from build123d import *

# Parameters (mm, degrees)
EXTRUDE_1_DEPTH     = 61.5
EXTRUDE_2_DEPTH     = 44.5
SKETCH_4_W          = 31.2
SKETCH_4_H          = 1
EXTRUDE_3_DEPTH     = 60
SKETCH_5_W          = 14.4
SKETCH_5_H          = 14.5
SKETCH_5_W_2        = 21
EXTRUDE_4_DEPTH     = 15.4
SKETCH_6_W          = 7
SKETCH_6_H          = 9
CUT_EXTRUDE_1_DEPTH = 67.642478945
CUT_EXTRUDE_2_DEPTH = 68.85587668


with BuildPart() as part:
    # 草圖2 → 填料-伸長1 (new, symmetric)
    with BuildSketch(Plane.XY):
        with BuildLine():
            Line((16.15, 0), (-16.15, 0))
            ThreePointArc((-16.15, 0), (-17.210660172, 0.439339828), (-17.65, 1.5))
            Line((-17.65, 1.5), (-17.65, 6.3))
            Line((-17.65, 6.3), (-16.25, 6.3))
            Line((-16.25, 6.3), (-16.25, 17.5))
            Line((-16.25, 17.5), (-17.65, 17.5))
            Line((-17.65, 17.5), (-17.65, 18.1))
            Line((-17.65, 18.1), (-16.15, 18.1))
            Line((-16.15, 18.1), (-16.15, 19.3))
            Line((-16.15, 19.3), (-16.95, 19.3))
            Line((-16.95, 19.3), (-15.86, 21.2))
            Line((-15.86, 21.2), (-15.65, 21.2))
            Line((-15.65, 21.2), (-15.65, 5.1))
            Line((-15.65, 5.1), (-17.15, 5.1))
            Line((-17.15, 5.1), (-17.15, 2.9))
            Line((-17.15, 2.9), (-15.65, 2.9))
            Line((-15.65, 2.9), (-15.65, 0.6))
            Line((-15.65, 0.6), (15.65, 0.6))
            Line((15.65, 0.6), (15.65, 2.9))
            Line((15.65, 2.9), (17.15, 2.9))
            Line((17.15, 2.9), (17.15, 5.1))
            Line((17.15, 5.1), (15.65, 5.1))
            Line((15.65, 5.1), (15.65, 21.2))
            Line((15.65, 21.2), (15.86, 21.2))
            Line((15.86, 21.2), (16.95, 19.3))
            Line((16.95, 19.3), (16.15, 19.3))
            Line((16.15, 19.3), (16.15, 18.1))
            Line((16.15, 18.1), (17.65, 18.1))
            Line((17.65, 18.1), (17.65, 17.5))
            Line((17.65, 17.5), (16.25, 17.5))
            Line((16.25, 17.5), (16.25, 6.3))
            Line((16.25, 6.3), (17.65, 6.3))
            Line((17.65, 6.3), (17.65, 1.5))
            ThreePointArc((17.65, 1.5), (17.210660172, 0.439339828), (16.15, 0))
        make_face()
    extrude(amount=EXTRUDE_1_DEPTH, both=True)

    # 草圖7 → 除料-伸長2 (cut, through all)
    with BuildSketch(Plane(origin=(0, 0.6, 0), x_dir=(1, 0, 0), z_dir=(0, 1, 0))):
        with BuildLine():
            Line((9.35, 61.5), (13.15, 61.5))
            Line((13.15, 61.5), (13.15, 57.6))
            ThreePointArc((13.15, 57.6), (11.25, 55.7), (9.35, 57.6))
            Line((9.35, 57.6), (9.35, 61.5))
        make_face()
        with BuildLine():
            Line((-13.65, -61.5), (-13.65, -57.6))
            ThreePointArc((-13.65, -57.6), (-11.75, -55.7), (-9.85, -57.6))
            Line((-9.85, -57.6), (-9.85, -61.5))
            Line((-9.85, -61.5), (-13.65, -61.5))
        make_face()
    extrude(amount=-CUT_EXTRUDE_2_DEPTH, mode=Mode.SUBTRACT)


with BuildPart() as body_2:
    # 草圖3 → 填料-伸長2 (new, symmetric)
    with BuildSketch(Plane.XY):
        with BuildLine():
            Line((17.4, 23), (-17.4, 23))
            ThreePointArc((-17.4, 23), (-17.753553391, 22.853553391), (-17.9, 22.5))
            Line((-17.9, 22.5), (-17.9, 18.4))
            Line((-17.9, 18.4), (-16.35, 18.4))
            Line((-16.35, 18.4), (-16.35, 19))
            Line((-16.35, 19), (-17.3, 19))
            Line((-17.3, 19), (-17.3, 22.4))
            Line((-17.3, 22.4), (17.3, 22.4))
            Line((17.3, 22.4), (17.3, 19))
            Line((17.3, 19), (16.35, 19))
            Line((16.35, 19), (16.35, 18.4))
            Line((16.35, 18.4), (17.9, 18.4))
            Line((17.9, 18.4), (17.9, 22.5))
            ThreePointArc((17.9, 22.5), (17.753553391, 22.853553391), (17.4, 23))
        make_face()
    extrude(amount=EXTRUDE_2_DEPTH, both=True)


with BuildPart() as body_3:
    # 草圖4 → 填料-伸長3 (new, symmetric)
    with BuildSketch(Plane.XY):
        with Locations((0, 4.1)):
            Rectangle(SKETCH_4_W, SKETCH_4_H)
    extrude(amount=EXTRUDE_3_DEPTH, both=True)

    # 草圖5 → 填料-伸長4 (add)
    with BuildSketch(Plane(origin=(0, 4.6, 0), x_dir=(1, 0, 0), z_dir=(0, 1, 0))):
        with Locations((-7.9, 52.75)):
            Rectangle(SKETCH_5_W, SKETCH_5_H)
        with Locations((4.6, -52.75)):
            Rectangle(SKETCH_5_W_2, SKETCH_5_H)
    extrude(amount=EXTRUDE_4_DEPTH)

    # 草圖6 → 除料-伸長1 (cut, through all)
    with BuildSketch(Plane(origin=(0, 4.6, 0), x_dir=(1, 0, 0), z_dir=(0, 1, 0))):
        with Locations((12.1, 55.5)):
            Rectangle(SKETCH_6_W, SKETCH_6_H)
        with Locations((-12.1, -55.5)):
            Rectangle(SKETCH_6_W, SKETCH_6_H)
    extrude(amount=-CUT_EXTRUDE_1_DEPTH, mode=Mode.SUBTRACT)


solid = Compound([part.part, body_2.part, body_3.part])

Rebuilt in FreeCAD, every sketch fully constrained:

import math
import FreeCAD as App
import Part
import Sketcher
from FreeCAD import Vector
Q = App.Units.Quantity


def add_polygon(sketch, points):
    """Adds a closed chain of lines whose ends are joined by coincident constraints."""
    first, n = sketch.GeometryCount, len(points)
    for a, b in zip(points, points[1:] + points[:1]):
        sketch.addGeometry(Part.LineSegment(App.Vector(*a, 0), App.Vector(*b, 0)), False)
    for i in range(n):
        sketch.addConstraint(Sketcher.Constraint("Coincident", first + i, 2, first + (i + 1) % n, 1))

doc = App.newDocument("Part")
body = doc.addObject("PartDesign::Body", "Body")

sketch1 = body.newObject("Sketcher::SketchObject", "Sketch")
sketch1.AttachmentSupport = (doc.getObject("XY_Plane"), [""])
sketch1.MapMode = "FlatFace"
sketch1.addGeometry(Part.LineSegment(Vector(-16.15, 0, 0), Vector(16.15, 0, 0)), False)
sketch1.addGeometry(Part.ArcOfCircle(Part.Circle(Vector(16.15, 1.5, 0), Vector(0, 0, 1), 1.5), math.radians(-90), math.radians(0)), False)
sketch1.addGeometry(Part.LineSegment(Vector(17.65, 1.5, 0), Vector(17.65, 6.3, 0)), False)
sketch1.addGeometry(Part.LineSegment(Vector(17.65, 6.3, 0), Vector(16.25, 6.3, 0)), False)
sketch1.addGeometry(Part.LineSegment(Vector(16.25, 6.3, 0), Vector(16.25, 17.5, 0)), False)
sketch1.addGeometry(Part.LineSegment(Vector(16.25, 17.5, 0), Vector(17.65, 17.5, 0)), False)
sketch1.addGeometry(Part.LineSegment(Vector(17.65, 17.5, 0), Vector(17.65, 18.1, 0)), False)
sketch1.addGeometry(Part.LineSegment(Vector(17.65, 18.1, 0), Vector(16.15, 18.1, 0)), False)
sketch1.addGeometry(Part.LineSegment(Vector(16.15, 18.1, 0), Vector(16.15, 19.3, 0)), False)
sketch1.addGeometry(Part.LineSegment(Vector(16.15, 19.3, 0), Vector(16.95, 19.3, 0)), False)
sketch1.addGeometry(Part.LineSegment(Vector(16.95, 19.3, 0), Vector(15.86, 21.2, 0)), False)
sketch1.addGeometry(Part.LineSegment(Vector(15.86, 21.2, 0), Vector(15.65, 21.2, 0)), False)
sketch1.addGeometry(Part.LineSegment(Vector(15.65, 21.2, 0), Vector(15.65, 5.1, 0)), False)
sketch1.addGeometry(Part.LineSegment(Vector(15.65, 5.1, 0), Vector(17.15, 5.1, 0)), False)
sketch1.addGeometry(Part.LineSegment(Vector(17.15, 5.1, 0), Vector(17.15, 2.9, 0)), False)
sketch1.addGeometry(Part.LineSegment(Vector(17.15, 2.9, 0), Vector(15.65, 2.9, 0)), False)
sketch1.addGeometry(Part.LineSegment(Vector(15.65, 2.9, 0), Vector(15.65, 0.6, 0)), False)
sketch1.addGeometry(Part.LineSegment(Vector(15.65, 0.6, 0), Vector(-15.65, 0.6, 0)), False)
sketch1.addGeometry(Part.LineSegment(Vector(-15.65, 0.6, 0), Vector(-15.65, 2.9, 0)), False)
sketch1.addGeometry(Part.LineSegment(Vector(-15.65, 2.9, 0), Vector(-17.15, 2.9, 0)), False)
sketch1.addGeometry(Part.LineSegment(Vector(-17.15, 2.9, 0), Vector(-17.15, 5.1, 0)), False)
sketch1.addGeometry(Part.LineSegment(Vector(-17.15, 5.1, 0), Vector(-15.65, 5.1, 0)), False)
sketch1.addGeometry(Part.LineSegment(Vector(-15.65, 5.1, 0), Vector(-15.65, 21.2, 0)), False)
sketch1.addGeometry(Part.LineSegment(Vector(-15.65, 21.2, 0), Vector(-15.86, 21.2, 0)), False)
sketch1.addGeometry(Part.LineSegment(Vector(-15.86, 21.2, 0), Vector(-16.95, 19.3, 0)), False)
sketch1.addGeometry(Part.LineSegment(Vector(-16.95, 19.3, 0), Vector(-16.15, 19.3, 0)), False)
sketch1.addGeometry(Part.LineSegment(Vector(-16.15, 19.3, 0), Vector(-16.15, 18.1, 0)), False)
sketch1.addGeometry(Part.LineSegment(Vector(-16.15, 18.1, 0), Vector(-17.65, 18.1, 0)), False)
sketch1.addGeometry(Part.LineSegment(Vector(-17.65, 18.1, 0), Vector(-17.65, 17.5, 0)), False)
sketch1.addGeometry(Part.LineSegment(Vector(-17.65, 17.5, 0), Vector(-16.25, 17.5, 0)), False)
sketch1.addGeometry(Part.LineSegment(Vector(-16.25, 17.5, 0), Vector(-16.25, 6.3, 0)), False)
sketch1.addGeometry(Part.LineSegment(Vector(-16.25, 6.3, 0), Vector(-17.65, 6.3, 0)), False)
sketch1.addGeometry(Part.LineSegment(Vector(-17.65, 6.3, 0), Vector(-17.65, 1.5, 0)), False)
sketch1.addGeometry(Part.ArcOfCircle(Part.Circle(Vector(-16.15, 1.5, 0), Vector(0, 0, 1), 1.5), math.radians(180), math.radians(270)), False)
sketch1.addConstraint(Sketcher.Constraint("Tangent", 0, 2, 1, 1))
sketch1.addConstraint(Sketcher.Constraint("Tangent", 1, 2, 2, 1))
sketch1.addConstraint(Sketcher.Constraint("Coincident", 2, 2, 3, 1))
sketch1.addConstraint(Sketcher.Constraint("Coincident", 3, 2, 4, 1))
sketch1.addConstraint(Sketcher.Constraint("Coincident", 4, 2, 5, 1))
sketch1.addConstraint(Sketcher.Constraint("Coincident", 5, 2, 6, 1))
sketch1.addConstraint(Sketcher.Constraint("Coincident", 6, 2, 7, 1))
sketch1.addConstraint(Sketcher.Constraint("Coincident", 7, 2, 8, 1))
sketch1.addConstraint(Sketcher.Constraint("Coincident", 8, 2, 9, 1))
sketch1.addConstraint(Sketcher.Constraint("Coincident", 9, 2, 10, 1))
sketch1.addConstraint(Sketcher.Constraint("Coincident", 10, 2, 11, 1))
sketch1.addConstraint(Sketcher.Constraint("Coincident", 11, 2, 12, 1))
sketch1.addConstraint(Sketcher.Constraint("Coincident", 12, 2, 13, 1))
sketch1.addConstraint(Sketcher.Constraint("Coincident", 13, 2, 14, 1))
sketch1.addConstraint(Sketcher.Constraint("Coincident", 14, 2, 15, 1))
sketch1.addConstraint(Sketcher.Constraint("Coincident", 15, 2, 16, 1))
sketch1.addConstraint(Sketcher.Constraint("Coincident", 16, 2, 17, 1))
sketch1.addConstraint(Sketcher.Constraint("Coincident", 17, 2, 18, 1))
sketch1.addConstraint(Sketcher.Constraint("Coincident", 18, 2, 19, 1))
sketch1.addConstraint(Sketcher.Constraint("Coincident", 19, 2, 20, 1))
sketch1.addConstraint(Sketcher.Constraint("Coincident", 20, 2, 21, 1))
sketch1.addConstraint(Sketcher.Constraint("Coincident", 21, 2, 22, 1))
sketch1.addConstraint(Sketcher.Constraint("Coincident", 22, 2, 23, 1))
sketch1.addConstraint(Sketcher.Constraint("Coincident", 23, 2, 24, 1))
sketch1.addConstraint(Sketcher.Constraint("Coincident", 24, 2, 25, 1))
sketch1.addConstraint(Sketcher.Constraint("Coincident", 25, 2, 26, 1))
sketch1.addConstraint(Sketcher.Constraint("Coincident", 26, 2, 27, 1))
sketch1.addConstraint(Sketcher.Constraint("Coincident", 27, 2, 28, 1))
sketch1.addConstraint(Sketcher.Constraint("Coincident", 28, 2, 29, 1))
sketch1.addConstraint(Sketcher.Constraint("Coincident", 29, 2, 30, 1))
sketch1.addConstraint(Sketcher.Constraint("Coincident", 30, 2, 31, 1))
sketch1.addConstraint(Sketcher.Constraint("Coincident", 31, 2, 32, 1))
sketch1.addConstraint(Sketcher.Constraint("Tangent", 32, 2, 33, 1))
sketch1.addConstraint(Sketcher.Constraint("Tangent", 33, 2, 0, 1))
sketch1.addConstraint(Sketcher.Constraint("Horizontal", 0))
sketch1.addConstraint(Sketcher.Constraint("Vertical", 2))
sketch1.addConstraint(Sketcher.Constraint("Horizontal", 3))
sketch1.addConstraint(Sketcher.Constraint("Vertical", 4))
sketch1.addConstraint(Sketcher.Constraint("Horizontal", 5))
sketch1.addConstraint(Sketcher.Constraint("Vertical", 6))
sketch1.addConstraint(Sketcher.Constraint("Horizontal", 7))
sketch1.addConstraint(Sketcher.Constraint("Vertical", 8))
sketch1.addConstraint(Sketcher.Constraint("Horizontal", 9))
sketch1.addConstraint(Sketcher.Constraint("Horizontal", 11))
sketch1.addConstraint(Sketcher.Constraint("Vertical", 12))
sketch1.addConstraint(Sketcher.Constraint("Horizontal", 13))
sketch1.addConstraint(Sketcher.Constraint("Vertical", 14))
sketch1.addConstraint(Sketcher.Constraint("Horizontal", 15))
sketch1.addConstraint(Sketcher.Constraint("Vertical", 16))
sketch1.addConstraint(Sketcher.Constraint("Horizontal", 17))
sketch1.addConstraint(Sketcher.Constraint("Vertical", 18))
sketch1.addConstraint(Sketcher.Constraint("Horizontal", 19))
sketch1.addConstraint(Sketcher.Constraint("Vertical", 20))
sketch1.addConstraint(Sketcher.Constraint("Horizontal", 21))
sketch1.addConstraint(Sketcher.Constraint("Vertical", 22))
sketch1.addConstraint(Sketcher.Constraint("Horizontal", 23))
sketch1.addConstraint(Sketcher.Constraint("Horizontal", 25))
sketch1.addConstraint(Sketcher.Constraint("Vertical", 26))
sketch1.addConstraint(Sketcher.Constraint("Horizontal", 27))
sketch1.addConstraint(Sketcher.Constraint("Vertical", 28))
sketch1.addConstraint(Sketcher.Constraint("Horizontal", 29))
sketch1.addConstraint(Sketcher.Constraint("Vertical", 30))
sketch1.addConstraint(Sketcher.Constraint("Horizontal", 31))
sketch1.addConstraint(Sketcher.Constraint("Vertical", 32))
sketch1.addConstraint(Sketcher.Constraint("Equal", 1, 33))
sketch1.addConstraint(Sketcher.Constraint("Symmetric", 0, 2, 33, 2, -1, 1))
sketch1.addConstraint(Sketcher.Constraint("Symmetric", 15, 2, 18, 2, -2))
sketch1.addConstraint(Sketcher.Constraint("Symmetric", 13, 2, 20, 2, -2))
sketch1.addConstraint(Sketcher.Constraint("Symmetric", 11, 2, 22, 2, -2))
sketch1.addConstraint(Sketcher.Constraint("Symmetric", 9, 2, 24, 2, -2))
sketch1.addConstraint(Sketcher.Constraint("Symmetric", 7, 2, 26, 2, -2))
sketch1.addConstraint(Sketcher.Constraint("Symmetric", 5, 2, 28, 2, -2))
sketch1.addConstraint(Sketcher.Constraint("Symmetric", 3, 2, 30, 2, -2))
sketch1.addConstraint(Sketcher.Constraint("Vertical", 2, 2, 5, 2))
sketch1.addConstraint(Sketcher.Constraint("Vertical", 0, 2, 7, 2))
sketch1.addConstraint(Sketcher.Constraint("Vertical", 12, 2, 15, 2))
sketch1.addConstraint(Sketcher.Constraint("Equal", 7, 13))
sketch1.addConstraint(Sketcher.Constraint("Equal", 11, 23))
sketch1.addConstraint(Sketcher.Constraint("Radius", 1, Q("1.5 mm")))
sketch1.addConstraint(Sketcher.Constraint("DistanceX", 0, 1, 0, 2, Q("32.3 mm")))
sketch1.addConstraint(Sketcher.Constraint("DistanceX", 3, 2, 3, 1, Q("1.4 mm")))
sketch1.addConstraint(Sketcher.Constraint("DistanceX", 9, 1, 9, 2, Q("0.8 mm")))
sketch1.addConstraint(Sketcher.Constraint("DistanceX", 17, 2, 17, 1, Q("31.3 mm")))
sketch1.addConstraint(Sketcher.Constraint("DistanceY", 2, 1, 2, 2, Q("4.8 mm")))
sketch1.addConstraint(Sketcher.Constraint("DistanceY", 4, 1, 4, 2, Q("11.2 mm")))
sketch1.addConstraint(Sketcher.Constraint("DistanceY", 6, 1, 6, 2, Q("0.6 mm")))
sketch1.addConstraint(Sketcher.Constraint("DistanceY", 8, 1, 8, 2, Q("1.2 mm")))
sketch1.addConstraint(Sketcher.Constraint("DistanceY", 12, 2, 12, 1, Q("16.1 mm")))
sketch1.addConstraint(Sketcher.Constraint("DistanceY", 14, 2, 14, 1, Q("2.2 mm")))
sketch1.addConstraint(Sketcher.Constraint("DistanceY", 16, 2, 16, 1, Q("2.3 mm")))
sketch1.addConstraint(Sketcher.Constraint("DistanceY", 21, 2, 26, 2, Q("13 mm")))
sketch1.addConstraint(Sketcher.Constraint("DistanceX", 11, 2, 11, 1, Q("0.21 mm")))
pad1 = body.newObject("PartDesign::Pad", "Pad")
pad1.Profile = sketch1
pad1.Length = 123
pad1.Midplane = True

sketch2 = body.newObject("Sketcher::SketchObject", "Sketch001")
sketch2.AttachmentSupport = (doc.getObject("XZ_Plane"), [""])
sketch2.MapMode = "FlatFace"
sketch2.AttachmentOffset = App.Placement(Vector(0, 0, -0.6), App.Rotation())
sketch2.addGeometry(Part.LineSegment(Vector(13.15, -61.5, 0), Vector(9.35, -61.5, 0)), False)
sketch2.addGeometry(Part.LineSegment(Vector(9.35, -61.5, 0), Vector(9.35, -57.6, 0)), False)
sketch2.addGeometry(Part.ArcOfCircle(Part.Circle(Vector(11.25, -57.6, 0), Vector(0, 0, 1), 1.9), math.radians(0), math.radians(180)), False)
sketch2.addGeometry(Part.LineSegment(Vector(13.15, -57.6, 0), Vector(13.15, -61.5, 0)), False)
sketch2.addGeometry(Part.LineSegment(Vector(-13.65, 57.6, 0), Vector(-13.65, 61.5, 0)), False)
sketch2.addGeometry(Part.LineSegment(Vector(-13.65, 61.5, 0), Vector(-9.85, 61.5, 0)), False)
sketch2.addGeometry(Part.LineSegment(Vector(-9.85, 61.5, 0), Vector(-9.85, 57.6, 0)), False)
sketch2.addGeometry(Part.ArcOfCircle(Part.Circle(Vector(-11.75, 57.6, 0), Vector(0, 0, 1), 1.9), math.radians(180), math.radians(360)), False)
sketch2.addConstraint(Sketcher.Constraint("Coincident", 0, 2, 1, 1))
sketch2.addConstraint(Sketcher.Constraint("Tangent", 1, 2, 2, 2))
sketch2.addConstraint(Sketcher.Constraint("Tangent", 2, 1, 3, 1))
sketch2.addConstraint(Sketcher.Constraint("Coincident", 3, 2, 0, 1))
sketch2.addConstraint(Sketcher.Constraint("Coincident", 4, 2, 5, 1))
sketch2.addConstraint(Sketcher.Constraint("Coincident", 5, 2, 6, 1))
sketch2.addConstraint(Sketcher.Constraint("Tangent", 6, 2, 7, 2))
sketch2.addConstraint(Sketcher.Constraint("Tangent", 7, 1, 4, 1))
sketch2.addConstraint(Sketcher.Constraint("Horizontal", 0))
sketch2.addConstraint(Sketcher.Constraint("Vertical", 1))
sketch2.addConstraint(Sketcher.Constraint("Vertical", 3))
sketch2.addConstraint(Sketcher.Constraint("Vertical", 4))
sketch2.addConstraint(Sketcher.Constraint("Horizontal", 5))
sketch2.addConstraint(Sketcher.Constraint("Vertical", 6))
sketch2.addConstraint(Sketcher.Constraint("Equal", 2, 7))
sketch2.addConstraint(Sketcher.Constraint("Equal", 3, 4))
sketch2.addConstraint(Sketcher.Constraint("Radius", 2, Q("1.9 mm")))
sketch2.addConstraint(Sketcher.Constraint("DistanceY", 1, 1, 1, 2, Q("3.9 mm")))
sketch2.addConstraint(Sketcher.Constraint("DistanceX", 7, 3, 2, 3, Q("23 mm")))
sketch2.addConstraint(Sketcher.Constraint("DistanceY", 0, 2, 4, 2, Q("123 mm")))
sketch2.addConstraint(Sketcher.Constraint("DistanceY", 2, 3, -1, 1, Q("57.6 mm")))
sketch2.addConstraint(Sketcher.Constraint("DistanceX", -1, 1, 2, 3, Q("11.25 mm")))
pocket1 = body.newObject("PartDesign::Pocket", "Pocket")
pocket1.Profile = sketch2
pocket1.Type = "ThroughAll"
pocket1.Reversed = True
body2 = doc.addObject("PartDesign::Body", "Body001")

sketch3 = body2.newObject("Sketcher::SketchObject", "Sketch002")
sketch3.AttachmentSupport = (doc.getObject("XY_Plane001"), [""])
sketch3.MapMode = "FlatFace"
sketch3.addGeometry(Part.LineSegment(Vector(17.4, 23, 0), Vector(-17.4, 23, 0)), False)
sketch3.addGeometry(Part.ArcOfCircle(Part.Circle(Vector(-17.4, 22.5, 0), Vector(0, 0, 1), 0.5), math.radians(90), math.radians(180)), False)
sketch3.addGeometry(Part.LineSegment(Vector(-17.9, 22.5, 0), Vector(-17.9, 18.4, 0)), False)
sketch3.addGeometry(Part.LineSegment(Vector(-17.9, 18.4, 0), Vector(-16.35, 18.4, 0)), False)
sketch3.addGeometry(Part.LineSegment(Vector(-16.35, 18.4, 0), Vector(-16.35, 19, 0)), False)
sketch3.addGeometry(Part.LineSegment(Vector(-16.35, 19, 0), Vector(-17.3, 19, 0)), False)
sketch3.addGeometry(Part.LineSegment(Vector(-17.3, 19, 0), Vector(-17.3, 22.4, 0)), False)
sketch3.addGeometry(Part.LineSegment(Vector(-17.3, 22.4, 0), Vector(17.3, 22.4, 0)), False)
sketch3.addGeometry(Part.LineSegment(Vector(17.3, 22.4, 0), Vector(17.3, 19, 0)), False)
sketch3.addGeometry(Part.LineSegment(Vector(17.3, 19, 0), Vector(16.35, 19, 0)), False)
sketch3.addGeometry(Part.LineSegment(Vector(16.35, 19, 0), Vector(16.35, 18.4, 0)), False)
sketch3.addGeometry(Part.LineSegment(Vector(16.35, 18.4, 0), Vector(17.9, 18.4, 0)), False)
sketch3.addGeometry(Part.LineSegment(Vector(17.9, 18.4, 0), Vector(17.9, 22.5, 0)), False)
sketch3.addGeometry(Part.ArcOfCircle(Part.Circle(Vector(17.4, 22.5, 0), Vector(0, 0, 1), 0.5), math.radians(0), math.radians(90)), False)
sketch3.addConstraint(Sketcher.Constraint("Tangent", 0, 2, 1, 1))
sketch3.addConstraint(Sketcher.Constraint("Tangent", 1, 2, 2, 1))
sketch3.addConstraint(Sketcher.Constraint("Coincident", 2, 2, 3, 1))
sketch3.addConstraint(Sketcher.Constraint("Coincident", 3, 2, 4, 1))
sketch3.addConstraint(Sketcher.Constraint("Coincident", 4, 2, 5, 1))
sketch3.addConstraint(Sketcher.Constraint("Coincident", 5, 2, 6, 1))
sketch3.addConstraint(Sketcher.Constraint("Coincident", 6, 2, 7, 1))
sketch3.addConstraint(Sketcher.Constraint("Coincident", 7, 2, 8, 1))
sketch3.addConstraint(Sketcher.Constraint("Coincident", 8, 2, 9, 1))
sketch3.addConstraint(Sketcher.Constraint("Coincident", 9, 2, 10, 1))
sketch3.addConstraint(Sketcher.Constraint("Coincident", 10, 2, 11, 1))
sketch3.addConstraint(Sketcher.Constraint("Coincident", 11, 2, 12, 1))
sketch3.addConstraint(Sketcher.Constraint("Tangent", 12, 2, 13, 1))
sketch3.addConstraint(Sketcher.Constraint("Tangent", 13, 2, 0, 1))
sketch3.addConstraint(Sketcher.Constraint("Horizontal", 0))
sketch3.addConstraint(Sketcher.Constraint("Vertical", 2))
sketch3.addConstraint(Sketcher.Constraint("Horizontal", 3))
sketch3.addConstraint(Sketcher.Constraint("Vertical", 4))
sketch3.addConstraint(Sketcher.Constraint("Horizontal", 5))
sketch3.addConstraint(Sketcher.Constraint("Vertical", 6))
sketch3.addConstraint(Sketcher.Constraint("Horizontal", 7))
sketch3.addConstraint(Sketcher.Constraint("Vertical", 8))
sketch3.addConstraint(Sketcher.Constraint("Horizontal", 9))
sketch3.addConstraint(Sketcher.Constraint("Vertical", 10))
sketch3.addConstraint(Sketcher.Constraint("Horizontal", 11))
sketch3.addConstraint(Sketcher.Constraint("Vertical", 12))
sketch3.addConstraint(Sketcher.Constraint("Equal", 1, 13))
sketch3.addConstraint(Sketcher.Constraint("Symmetric", 5, 2, 8, 2, -2))
sketch3.addConstraint(Sketcher.Constraint("Symmetric", 3, 2, 10, 2, -2))
sketch3.addConstraint(Sketcher.Constraint("Equal", 3, 11))
sketch3.addConstraint(Sketcher.Constraint("Radius", 1, Q("0.5 mm")))
sketch3.addConstraint(Sketcher.Constraint("DistanceX", 0, 2, 0, 1, Q("34.8 mm")))
sketch3.addConstraint(Sketcher.Constraint("DistanceX", 7, 1, 7, 2, Q("34.6 mm")))
sketch3.addConstraint(Sketcher.Constraint("DistanceY", 2, 2, 2, 1, Q("4.1 mm")))
sketch3.addConstraint(Sketcher.Constraint("DistanceY", 4, 1, 4, 2, Q("0.6 mm")))
sketch3.addConstraint(Sketcher.Constraint("DistanceY", 6, 1, 6, 2, Q("3.4 mm")))
sketch3.addConstraint(Sketcher.Constraint("DistanceY", -1, 1, 0, 2, Q("23 mm")))
sketch3.addConstraint(Sketcher.Constraint("DistanceX", 3, 1, 3, 2, Q("1.55 mm")))
pad2 = body2.newObject("PartDesign::Pad", "Pad001")
pad2.Profile = sketch3
pad2.Length = 89
pad2.Midplane = True
body3 = doc.addObject("PartDesign::Body", "Body002")

sketch4 = body3.newObject("Sketcher::SketchObject", "Sketch003")
sketch4.AttachmentSupport = (doc.getObject("XY_Plane002"), [""])
sketch4.MapMode = "FlatFace"
add_polygon(sketch4, [(-15.6, 4.6), (-15.6, 3.6), (15.6, 3.6), (15.6, 4.6)])
sketch4.addConstraint(Sketcher.Constraint("Vertical", 0))
sketch4.addConstraint(Sketcher.Constraint("Horizontal", 1))
sketch4.addConstraint(Sketcher.Constraint("Vertical", 2))
sketch4.addConstraint(Sketcher.Constraint("Horizontal", 3))
sketch4.addConstraint(Sketcher.Constraint("DistanceY", 0, 2, 0, 1, Q("1 mm")))
sketch4.addConstraint(Sketcher.Constraint("DistanceX", 1, 1, 1, 2, Q("31.2 mm")))
sketch4.addConstraint(Sketcher.Constraint("DistanceX", 0, 2, -1, 1, Q("15.6 mm")))
sketch4.addConstraint(Sketcher.Constraint("DistanceY", -1, 1, 0, 2, Q("3.6 mm")))
pad3 = body3.newObject("PartDesign::Pad", "Pad002")
pad3.Profile = sketch4
pad3.Length = 120
pad3.Midplane = True

sketch5 = body3.newObject("Sketcher::SketchObject", "Sketch004")
sketch5.AttachmentSupport = (doc.getObject("XZ_Plane002"), [""])
sketch5.MapMode = "FlatFace"
sketch5.AttachmentOffset = App.Placement(Vector(0, 0, -4.6), App.Rotation())
add_polygon(sketch5, [(-15.1, -60), (-15.1, -45.5), (-0.7, -45.5), (-0.7, -60)])
add_polygon(sketch5, [(-5.9, 45.5), (-5.9, 60), (15.1, 60), (15.1, 45.5)])
sketch5.addConstraint(Sketcher.Constraint("Vertical", 0))
sketch5.addConstraint(Sketcher.Constraint("Horizontal", 1))
sketch5.addConstraint(Sketcher.Constraint("Vertical", 2))
sketch5.addConstraint(Sketcher.Constraint("Horizontal", 3))
sketch5.addConstraint(Sketcher.Constraint("Vertical", 4))
sketch5.addConstraint(Sketcher.Constraint("Horizontal", 5))
sketch5.addConstraint(Sketcher.Constraint("Vertical", 6))
sketch5.addConstraint(Sketcher.Constraint("Horizontal", 7))
sketch5.addConstraint(Sketcher.Constraint("Symmetric", 3, 2, 5, 2, -1, 1))
sketch5.addConstraint(Sketcher.Constraint("Equal", 2, 4))
sketch5.addConstraint(Sketcher.Constraint("DistanceX", 5, 1, 5, 2, Q("21 mm")))
sketch5.addConstraint(Sketcher.Constraint("DistanceX", 1, 1, 1, 2, Q("14.4 mm")))
sketch5.addConstraint(Sketcher.Constraint("DistanceY", 0, 1, 0, 2, Q("14.5 mm")))
sketch5.addConstraint(Sketcher.Constraint("DistanceY", 2, 2, -1, 1, Q("60 mm")))
sketch5.addConstraint(Sketcher.Constraint("DistanceX", 0, 2, -1, 1, Q("15.1 mm")))
pad4 = body3.newObject("PartDesign::Pad", "Pad003")
pad4.Profile = sketch5
pad4.Length = 15.4
pad4.Reversed = True

sketch6 = body3.newObject("Sketcher::SketchObject", "Sketch005")
sketch6.AttachmentSupport = (doc.getObject("XZ_Plane002"), [""])
sketch6.MapMode = "FlatFace"
sketch6.AttachmentOffset = App.Placement(Vector(0, 0, -4.6), App.Rotation())
add_polygon(sketch6, [(8.6, -60), (8.6, -51), (15.6, -51), (15.6, -60)])
add_polygon(sketch6, [(-15.6, 51), (-15.6, 60), (-8.6, 60), (-8.6, 51)])
sketch6.addConstraint(Sketcher.Constraint("Vertical", 0))
sketch6.addConstraint(Sketcher.Constraint("Horizontal", 1))
sketch6.addConstraint(Sketcher.Constraint("Vertical", 2))
sketch6.addConstraint(Sketcher.Constraint("Horizontal", 3))
sketch6.addConstraint(Sketcher.Constraint("Vertical", 4))
sketch6.addConstraint(Sketcher.Constraint("Horizontal", 5))
sketch6.addConstraint(Sketcher.Constraint("Vertical", 6))
sketch6.addConstraint(Sketcher.Constraint("Horizontal", 7))
sketch6.addConstraint(Sketcher.Constraint("Symmetric", 2, 2, 4, 2, -1, 1))
sketch6.addConstraint(Sketcher.Constraint("Symmetric", 0, 2, 6, 2, -1, 1))
sketch6.addConstraint(Sketcher.Constraint("DistanceX", 1, 1, 1, 2, Q("7 mm")))
sketch6.addConstraint(Sketcher.Constraint("DistanceY", 0, 1, 0, 2, Q("9 mm")))
sketch6.addConstraint(Sketcher.Constraint("DistanceY", 0, 2, -1, 1, Q("51 mm")))
sketch6.addConstraint(Sketcher.Constraint("DistanceX", -1, 1, 0, 2, Q("8.6 mm")))
pocket2 = body3.newObject("PartDesign::Pocket", "Pocket001")
pocket2.Profile = sketch6
pocket2.Type = "ThroughAll"
pocket2.Reversed = True

doc.recompute()
